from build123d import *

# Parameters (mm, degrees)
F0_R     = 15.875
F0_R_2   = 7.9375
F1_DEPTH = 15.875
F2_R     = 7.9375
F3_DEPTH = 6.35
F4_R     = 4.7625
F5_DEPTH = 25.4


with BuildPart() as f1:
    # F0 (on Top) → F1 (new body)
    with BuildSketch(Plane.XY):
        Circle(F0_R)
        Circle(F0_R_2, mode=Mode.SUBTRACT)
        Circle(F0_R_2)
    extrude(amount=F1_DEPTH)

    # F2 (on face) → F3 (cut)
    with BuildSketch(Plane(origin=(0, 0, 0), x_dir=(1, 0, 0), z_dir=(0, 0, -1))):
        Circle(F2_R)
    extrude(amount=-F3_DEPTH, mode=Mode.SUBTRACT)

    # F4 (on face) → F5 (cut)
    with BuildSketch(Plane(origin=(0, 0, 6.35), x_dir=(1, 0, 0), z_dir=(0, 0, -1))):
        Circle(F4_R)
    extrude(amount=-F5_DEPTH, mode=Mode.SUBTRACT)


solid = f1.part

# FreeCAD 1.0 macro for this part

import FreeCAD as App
import Part
import Sketcher

V = App.Vector
Q = App.Units.Quantity

doc = App.newDocument("Part")
body = doc.addObject("PartDesign::Body", "Body")

sketch1 = body.newObject("Sketcher::SketchObject", "Sketch")
sketch1.AttachmentSupport = (doc.getObject("XY_Plane"), [""])
sketch1.MapMode = "FlatFace"
sketch1.addGeometry(Part.Circle(V(0, 0, 0), V(0, 0, 1), 16), False)
sketch1.addConstraint([
    Sketcher.Constraint("Coincident", 0, 3, -1, 1),
    Sketcher.Constraint("Diameter", 0, Q("1.25 in")),
])
pad1 = body.newObject("PartDesign::Pad", "Pad")
pad1.Profile = sketch1
pad1.Length = Q("0.625 in")

sketch2 = body.newObject("Sketcher::SketchObject", "Sketch001")
sketch2.AttachmentSupport = (doc.getObject("XY_Plane"), [""])
sketch2.MapMode = "FlatFace"
sketch2.addGeometry(Part.Circle(V(0, 0, 0), V(0, 0, 1), 8), False)
sketch2.addConstraint([
    Sketcher.Constraint("Coincident", 0, 3, -1, 1),
    Sketcher.Constraint("Diameter", 0, Q("0.625 in")),
])
pocket1 = body.newObject("PartDesign::Pocket", "Pocket")
pocket1.Profile = sketch2
pocket1.Length = Q("0.25 in")
pocket1.Reversed = True

sketch3 = body.newObject("Sketcher::SketchObject", "Sketch002")
sketch3.AttachmentSupport = (doc.getObject("XY_Plane"), [""])
sketch3.MapMode = "FlatFace"
sketch3.AttachmentOffset = App.Placement(V(0, 0, 0.25 * 25.4), App.Rotation())
sketch3.addGeometry(Part.Circle(V(0, 0, 0), V(0, 0, 1), 4.8), False)
sketch3.addConstraint([
    Sketcher.Constraint("Coincident", 0, 3, -1, 1),
    Sketcher.Constraint("Diameter", 0, Q("0.375 in")),
])
pocket2 = body.newObject("PartDesign::Pocket", "Pocket001")
pocket2.Profile = sketch3
pocket2.Length = Q("1 in")
pocket2.Reversed = True

doc.recompute()
